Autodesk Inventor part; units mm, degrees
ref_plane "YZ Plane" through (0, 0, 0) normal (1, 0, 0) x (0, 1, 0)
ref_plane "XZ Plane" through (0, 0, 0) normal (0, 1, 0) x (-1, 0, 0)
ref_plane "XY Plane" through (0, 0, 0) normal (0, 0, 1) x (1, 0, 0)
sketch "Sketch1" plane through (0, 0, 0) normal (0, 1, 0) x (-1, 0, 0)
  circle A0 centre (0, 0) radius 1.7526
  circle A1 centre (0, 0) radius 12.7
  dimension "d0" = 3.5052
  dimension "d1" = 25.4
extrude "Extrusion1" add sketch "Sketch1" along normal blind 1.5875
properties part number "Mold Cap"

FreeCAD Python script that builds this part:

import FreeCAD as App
import Part
import Sketcher
Q = App.Units.Quantity

doc = App.newDocument("Part")
body = doc.addObject("PartDesign::Body", "Body")

# Sketch on XZ plane
sketch1 = body.newObject("Sketcher::SketchObject", "Sketch")
sketch1.AttachmentSupport = (doc.getObject("XZ_Plane"), [""])
sketch1.MapMode = "FlatFace"
sketch1.addGeometry([
    Part.Circle(App.Vector(0, 0, 0), App.Vector(0, 0, 1), 12.7),
    Part.Circle(App.Vector(0, 0, 0), App.Vector(0, 0, 1), 1.8),
], False)
sketch1.addConstraint([
    Sketcher.Constraint("Coincident", 0, 3, -1, 1),
    Sketcher.Constraint("Coincident", 1, 3, -1, 1),
    Sketcher.Constraint("Diameter", 0, Q("1 in")),
    Sketcher.Constraint("Diameter", 1, Q("0.138 in")),
])
pad1 = body.newObject("PartDesign::Pad", "Pad")
pad1.Profile = sketch1
pad1.Length = Q("0.0625 in")
pad1.Reversed = True

doc.recompute()
